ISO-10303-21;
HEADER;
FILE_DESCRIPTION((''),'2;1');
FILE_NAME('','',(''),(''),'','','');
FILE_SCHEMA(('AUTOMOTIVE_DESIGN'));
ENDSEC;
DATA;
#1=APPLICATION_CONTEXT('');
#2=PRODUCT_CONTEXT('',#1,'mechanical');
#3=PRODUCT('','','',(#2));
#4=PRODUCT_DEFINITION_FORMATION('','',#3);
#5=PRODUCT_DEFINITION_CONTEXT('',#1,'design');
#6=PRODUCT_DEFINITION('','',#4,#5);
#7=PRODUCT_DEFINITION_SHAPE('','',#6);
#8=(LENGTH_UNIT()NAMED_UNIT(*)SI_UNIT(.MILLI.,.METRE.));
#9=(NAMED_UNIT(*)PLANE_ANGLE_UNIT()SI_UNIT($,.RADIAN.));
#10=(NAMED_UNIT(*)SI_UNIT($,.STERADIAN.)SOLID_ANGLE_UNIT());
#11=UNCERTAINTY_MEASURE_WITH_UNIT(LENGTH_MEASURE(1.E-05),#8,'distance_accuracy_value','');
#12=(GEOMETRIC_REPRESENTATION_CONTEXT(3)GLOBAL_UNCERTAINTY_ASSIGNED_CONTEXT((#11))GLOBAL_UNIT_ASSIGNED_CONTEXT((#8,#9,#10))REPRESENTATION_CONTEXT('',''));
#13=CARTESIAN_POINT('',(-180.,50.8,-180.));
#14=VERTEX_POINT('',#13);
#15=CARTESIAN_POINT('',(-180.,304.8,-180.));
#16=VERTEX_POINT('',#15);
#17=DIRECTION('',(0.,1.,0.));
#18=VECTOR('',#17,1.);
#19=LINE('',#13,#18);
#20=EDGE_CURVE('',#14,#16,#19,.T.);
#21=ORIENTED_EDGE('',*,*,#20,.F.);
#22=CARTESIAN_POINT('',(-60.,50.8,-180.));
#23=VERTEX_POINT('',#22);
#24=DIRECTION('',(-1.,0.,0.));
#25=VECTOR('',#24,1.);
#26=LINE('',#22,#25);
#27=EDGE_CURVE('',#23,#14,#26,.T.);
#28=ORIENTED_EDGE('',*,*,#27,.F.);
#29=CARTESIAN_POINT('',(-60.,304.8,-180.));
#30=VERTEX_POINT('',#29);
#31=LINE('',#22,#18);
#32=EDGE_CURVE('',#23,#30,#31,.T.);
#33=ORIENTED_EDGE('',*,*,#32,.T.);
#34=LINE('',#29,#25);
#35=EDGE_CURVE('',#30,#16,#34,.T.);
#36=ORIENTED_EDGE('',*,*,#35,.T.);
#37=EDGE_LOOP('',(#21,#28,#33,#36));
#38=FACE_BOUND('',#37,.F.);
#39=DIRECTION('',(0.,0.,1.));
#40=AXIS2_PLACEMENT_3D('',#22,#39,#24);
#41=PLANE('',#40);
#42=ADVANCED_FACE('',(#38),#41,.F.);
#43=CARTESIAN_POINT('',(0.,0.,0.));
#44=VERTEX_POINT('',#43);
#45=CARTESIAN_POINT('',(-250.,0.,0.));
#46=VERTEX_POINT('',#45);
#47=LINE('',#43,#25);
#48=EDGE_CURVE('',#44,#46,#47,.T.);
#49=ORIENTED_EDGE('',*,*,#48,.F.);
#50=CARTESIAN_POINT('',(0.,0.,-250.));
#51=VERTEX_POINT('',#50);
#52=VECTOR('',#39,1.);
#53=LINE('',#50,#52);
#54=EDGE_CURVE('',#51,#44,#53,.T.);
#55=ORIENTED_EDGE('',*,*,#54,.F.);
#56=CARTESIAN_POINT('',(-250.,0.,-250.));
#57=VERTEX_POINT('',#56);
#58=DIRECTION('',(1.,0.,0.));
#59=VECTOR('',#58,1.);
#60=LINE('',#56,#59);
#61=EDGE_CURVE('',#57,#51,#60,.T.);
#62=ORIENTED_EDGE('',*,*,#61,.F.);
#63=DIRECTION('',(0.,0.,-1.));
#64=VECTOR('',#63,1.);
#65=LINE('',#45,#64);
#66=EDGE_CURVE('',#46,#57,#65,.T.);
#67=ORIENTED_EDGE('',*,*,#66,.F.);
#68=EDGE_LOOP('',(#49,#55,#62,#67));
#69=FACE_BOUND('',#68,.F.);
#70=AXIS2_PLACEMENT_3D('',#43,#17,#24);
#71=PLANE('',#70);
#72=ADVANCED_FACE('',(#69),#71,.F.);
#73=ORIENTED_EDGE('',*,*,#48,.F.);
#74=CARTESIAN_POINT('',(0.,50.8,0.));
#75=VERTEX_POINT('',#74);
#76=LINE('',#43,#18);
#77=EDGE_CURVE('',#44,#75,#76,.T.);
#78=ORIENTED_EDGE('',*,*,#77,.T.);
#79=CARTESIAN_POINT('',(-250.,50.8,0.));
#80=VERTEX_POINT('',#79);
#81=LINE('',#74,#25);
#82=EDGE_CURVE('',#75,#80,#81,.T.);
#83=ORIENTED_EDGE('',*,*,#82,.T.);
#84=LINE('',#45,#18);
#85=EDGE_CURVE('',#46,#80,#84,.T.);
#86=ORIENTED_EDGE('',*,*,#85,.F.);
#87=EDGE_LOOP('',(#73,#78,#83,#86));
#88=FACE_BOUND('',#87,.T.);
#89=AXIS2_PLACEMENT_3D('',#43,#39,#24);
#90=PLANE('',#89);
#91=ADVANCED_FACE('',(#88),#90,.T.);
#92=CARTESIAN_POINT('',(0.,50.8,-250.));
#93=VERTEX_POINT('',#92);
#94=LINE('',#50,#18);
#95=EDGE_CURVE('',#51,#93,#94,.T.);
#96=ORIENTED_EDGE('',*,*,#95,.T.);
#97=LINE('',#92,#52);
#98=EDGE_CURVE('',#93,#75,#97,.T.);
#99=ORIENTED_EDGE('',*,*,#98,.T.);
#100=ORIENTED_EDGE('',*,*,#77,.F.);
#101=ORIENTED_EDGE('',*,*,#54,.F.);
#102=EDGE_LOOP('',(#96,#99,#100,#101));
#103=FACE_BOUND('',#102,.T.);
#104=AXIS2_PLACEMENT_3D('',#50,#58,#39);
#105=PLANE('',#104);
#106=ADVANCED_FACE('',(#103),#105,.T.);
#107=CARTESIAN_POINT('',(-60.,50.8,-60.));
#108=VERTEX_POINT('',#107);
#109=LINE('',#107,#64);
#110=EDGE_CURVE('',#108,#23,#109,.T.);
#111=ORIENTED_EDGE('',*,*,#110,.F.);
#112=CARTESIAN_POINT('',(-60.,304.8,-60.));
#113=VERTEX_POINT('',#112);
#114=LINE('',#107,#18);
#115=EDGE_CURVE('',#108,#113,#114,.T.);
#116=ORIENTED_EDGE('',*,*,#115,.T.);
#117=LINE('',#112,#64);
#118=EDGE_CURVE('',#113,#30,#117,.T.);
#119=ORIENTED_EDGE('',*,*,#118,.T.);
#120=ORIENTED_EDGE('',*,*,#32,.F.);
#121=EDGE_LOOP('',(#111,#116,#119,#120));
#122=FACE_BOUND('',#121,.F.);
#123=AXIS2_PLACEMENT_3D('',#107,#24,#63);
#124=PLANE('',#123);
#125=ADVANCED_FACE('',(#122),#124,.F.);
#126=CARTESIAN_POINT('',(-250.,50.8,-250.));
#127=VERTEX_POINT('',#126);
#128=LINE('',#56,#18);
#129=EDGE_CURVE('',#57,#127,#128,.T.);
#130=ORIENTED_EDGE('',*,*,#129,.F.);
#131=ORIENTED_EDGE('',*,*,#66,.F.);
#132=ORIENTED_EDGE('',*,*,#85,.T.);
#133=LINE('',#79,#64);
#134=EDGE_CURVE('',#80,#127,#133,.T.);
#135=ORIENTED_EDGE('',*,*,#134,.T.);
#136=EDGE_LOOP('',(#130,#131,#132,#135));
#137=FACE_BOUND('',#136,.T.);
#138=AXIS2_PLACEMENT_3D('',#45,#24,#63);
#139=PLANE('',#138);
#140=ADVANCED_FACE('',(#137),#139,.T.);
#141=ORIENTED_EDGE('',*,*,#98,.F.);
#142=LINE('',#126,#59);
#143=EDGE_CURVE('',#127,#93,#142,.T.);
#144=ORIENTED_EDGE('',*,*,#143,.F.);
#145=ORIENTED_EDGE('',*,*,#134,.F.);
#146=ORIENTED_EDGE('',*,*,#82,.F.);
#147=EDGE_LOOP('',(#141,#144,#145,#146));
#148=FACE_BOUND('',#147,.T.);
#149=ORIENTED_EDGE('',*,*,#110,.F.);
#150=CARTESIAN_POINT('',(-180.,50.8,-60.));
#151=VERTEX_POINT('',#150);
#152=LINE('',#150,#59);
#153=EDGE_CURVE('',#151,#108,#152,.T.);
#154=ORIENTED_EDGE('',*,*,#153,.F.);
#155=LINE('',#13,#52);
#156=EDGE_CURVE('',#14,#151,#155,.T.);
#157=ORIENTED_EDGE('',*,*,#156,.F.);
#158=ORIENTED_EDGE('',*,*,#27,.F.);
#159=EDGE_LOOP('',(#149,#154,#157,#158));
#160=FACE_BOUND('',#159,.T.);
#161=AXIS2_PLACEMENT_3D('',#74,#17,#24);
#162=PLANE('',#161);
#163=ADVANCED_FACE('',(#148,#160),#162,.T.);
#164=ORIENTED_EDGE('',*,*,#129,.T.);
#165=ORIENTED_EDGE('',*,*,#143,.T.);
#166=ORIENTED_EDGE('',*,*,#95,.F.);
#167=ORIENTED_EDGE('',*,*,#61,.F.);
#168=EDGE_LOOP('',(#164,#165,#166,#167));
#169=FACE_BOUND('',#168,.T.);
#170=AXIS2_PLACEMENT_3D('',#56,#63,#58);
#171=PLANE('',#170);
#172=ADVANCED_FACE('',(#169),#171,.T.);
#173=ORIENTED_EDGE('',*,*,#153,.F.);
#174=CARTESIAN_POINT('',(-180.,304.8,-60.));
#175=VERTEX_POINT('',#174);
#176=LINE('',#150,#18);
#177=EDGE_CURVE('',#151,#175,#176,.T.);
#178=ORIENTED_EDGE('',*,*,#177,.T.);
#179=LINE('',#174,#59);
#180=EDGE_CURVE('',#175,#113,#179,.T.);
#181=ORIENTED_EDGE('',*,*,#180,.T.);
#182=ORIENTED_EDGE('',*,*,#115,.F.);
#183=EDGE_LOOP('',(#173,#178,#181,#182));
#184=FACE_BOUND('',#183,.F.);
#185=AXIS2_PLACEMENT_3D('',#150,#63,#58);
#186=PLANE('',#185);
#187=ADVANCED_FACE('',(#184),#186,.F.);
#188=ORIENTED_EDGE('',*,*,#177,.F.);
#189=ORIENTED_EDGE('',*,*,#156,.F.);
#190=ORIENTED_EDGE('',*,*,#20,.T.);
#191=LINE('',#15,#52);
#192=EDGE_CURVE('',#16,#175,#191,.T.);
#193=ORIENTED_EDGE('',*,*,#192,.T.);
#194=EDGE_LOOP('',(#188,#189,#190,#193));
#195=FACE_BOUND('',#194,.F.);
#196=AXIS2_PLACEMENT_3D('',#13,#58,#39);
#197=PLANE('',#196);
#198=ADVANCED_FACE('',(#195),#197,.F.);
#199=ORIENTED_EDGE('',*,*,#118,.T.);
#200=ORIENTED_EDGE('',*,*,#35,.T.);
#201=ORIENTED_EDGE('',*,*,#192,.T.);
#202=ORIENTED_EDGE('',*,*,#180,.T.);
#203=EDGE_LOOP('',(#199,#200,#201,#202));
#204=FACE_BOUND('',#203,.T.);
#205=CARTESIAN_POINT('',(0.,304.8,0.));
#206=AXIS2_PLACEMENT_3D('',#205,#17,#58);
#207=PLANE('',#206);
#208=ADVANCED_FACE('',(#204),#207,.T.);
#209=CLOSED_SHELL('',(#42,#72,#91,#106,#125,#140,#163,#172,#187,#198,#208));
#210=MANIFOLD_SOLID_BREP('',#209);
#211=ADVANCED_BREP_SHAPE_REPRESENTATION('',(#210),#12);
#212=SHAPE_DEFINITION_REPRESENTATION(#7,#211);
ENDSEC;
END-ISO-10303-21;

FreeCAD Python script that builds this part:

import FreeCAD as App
import Part
import Sketcher
from FreeCAD import Vector
Q = App.Units.Quantity

doc = App.newDocument("Part")
body = doc.addObject("PartDesign::Body", "Body")

sketch1 = body.newObject("Sketcher::SketchObject", "Sketch")
sketch1.AttachmentSupport = (doc.getObject("XZ_Plane"), [""])
sketch1.MapMode = "FlatFace"
sketch1.addGeometry([
    Part.LineSegment(Vector(-250, 0, 0), Vector(0, 0, 0)),
    Part.LineSegment(Vector(0, 0, 0), Vector(0, -250, 0)),
    Part.LineSegment(Vector(0, -250, 0), Vector(-250, -250, 0)),
    Part.LineSegment(Vector(-250, -250, 0), Vector(-250, 0, 0)),
], False)
sketch1.addConstraint([
    Sketcher.Constraint("Coincident", 0, 2, 1, 1),
    Sketcher.Constraint("Coincident", 1, 2, 2, 1),
    Sketcher.Constraint("Coincident", 2, 2, 3, 1),
    Sketcher.Constraint("Coincident", 3, 2, 0, 1),
    Sketcher.Constraint("Horizontal", 0),
    Sketcher.Constraint("Vertical", 1),
    Sketcher.Constraint("Horizontal", 2),
    Sketcher.Constraint("Vertical", 3),
    Sketcher.Constraint("Coincident", 0, 2, -1, 1),
    Sketcher.Constraint("Equal", 2, 1),
    Sketcher.Constraint("DistanceX", 0, 1, 0, 2, Q("250 mm")),
])
pad1 = body.newObject("PartDesign::Pad", "Pad")
pad1.Profile = sketch1
pad1.Length = Q("2 in")
pad1.Reversed = True

sketch2 = body.newObject("Sketcher::SketchObject", "Sketch001")
sketch2.AttachmentSupport = (doc.getObject("XZ_Plane"), [""])
sketch2.MapMode = "FlatFace"
sketch2.AttachmentOffset = App.Placement(Vector(0, 0, -2 * 25.4), App.Rotation())
sketch2.addGeometry([
    Part.LineSegment(Vector(-180, -180, 0), Vector(-180, -60, 0)),
    Part.LineSegment(Vector(-180, -60, 0), Vector(-60, -60, 0)),
    Part.LineSegment(Vector(-60, -60, 0), Vector(-60, -180, 0)),
    Part.LineSegment(Vector(-60, -180, 0), Vector(-180, -180, 0)),
], False)
sketch2.addConstraint([
    Sketcher.Constraint("Coincident", 0, 2, 1, 1),
    Sketcher.Constraint("Coincident", 1, 2, 2, 1),
    Sketcher.Constraint("Coincident", 2, 2, 3, 1),
    Sketcher.Constraint("Coincident", 3, 2, 0, 1),
    Sketcher.Constraint("Vertical", 0),
    Sketcher.Constraint("Horizontal", 1),
    Sketcher.Constraint("Vertical", 2),
    Sketcher.Constraint("Horizontal", 3),
    Sketcher.Constraint("Equal", 3, 0),
    Sketcher.Constraint("DistanceX", 1, 1, 1, 2, Q("4.7244 in")),
    Sketcher.Constraint("DistanceY", 0, 2, -1, 1, Q("2.3622 in")),
    Sketcher.Constraint("DistanceX", 1, 2, -1, 1, Q("2.3622 in")),
])
pad2 = body.newObject("PartDesign::Pad", "Pad001")
pad2.Profile = sketch2
pad2.Length = Q("10 in")
pad2.Reversed = True

doc.recompute()
